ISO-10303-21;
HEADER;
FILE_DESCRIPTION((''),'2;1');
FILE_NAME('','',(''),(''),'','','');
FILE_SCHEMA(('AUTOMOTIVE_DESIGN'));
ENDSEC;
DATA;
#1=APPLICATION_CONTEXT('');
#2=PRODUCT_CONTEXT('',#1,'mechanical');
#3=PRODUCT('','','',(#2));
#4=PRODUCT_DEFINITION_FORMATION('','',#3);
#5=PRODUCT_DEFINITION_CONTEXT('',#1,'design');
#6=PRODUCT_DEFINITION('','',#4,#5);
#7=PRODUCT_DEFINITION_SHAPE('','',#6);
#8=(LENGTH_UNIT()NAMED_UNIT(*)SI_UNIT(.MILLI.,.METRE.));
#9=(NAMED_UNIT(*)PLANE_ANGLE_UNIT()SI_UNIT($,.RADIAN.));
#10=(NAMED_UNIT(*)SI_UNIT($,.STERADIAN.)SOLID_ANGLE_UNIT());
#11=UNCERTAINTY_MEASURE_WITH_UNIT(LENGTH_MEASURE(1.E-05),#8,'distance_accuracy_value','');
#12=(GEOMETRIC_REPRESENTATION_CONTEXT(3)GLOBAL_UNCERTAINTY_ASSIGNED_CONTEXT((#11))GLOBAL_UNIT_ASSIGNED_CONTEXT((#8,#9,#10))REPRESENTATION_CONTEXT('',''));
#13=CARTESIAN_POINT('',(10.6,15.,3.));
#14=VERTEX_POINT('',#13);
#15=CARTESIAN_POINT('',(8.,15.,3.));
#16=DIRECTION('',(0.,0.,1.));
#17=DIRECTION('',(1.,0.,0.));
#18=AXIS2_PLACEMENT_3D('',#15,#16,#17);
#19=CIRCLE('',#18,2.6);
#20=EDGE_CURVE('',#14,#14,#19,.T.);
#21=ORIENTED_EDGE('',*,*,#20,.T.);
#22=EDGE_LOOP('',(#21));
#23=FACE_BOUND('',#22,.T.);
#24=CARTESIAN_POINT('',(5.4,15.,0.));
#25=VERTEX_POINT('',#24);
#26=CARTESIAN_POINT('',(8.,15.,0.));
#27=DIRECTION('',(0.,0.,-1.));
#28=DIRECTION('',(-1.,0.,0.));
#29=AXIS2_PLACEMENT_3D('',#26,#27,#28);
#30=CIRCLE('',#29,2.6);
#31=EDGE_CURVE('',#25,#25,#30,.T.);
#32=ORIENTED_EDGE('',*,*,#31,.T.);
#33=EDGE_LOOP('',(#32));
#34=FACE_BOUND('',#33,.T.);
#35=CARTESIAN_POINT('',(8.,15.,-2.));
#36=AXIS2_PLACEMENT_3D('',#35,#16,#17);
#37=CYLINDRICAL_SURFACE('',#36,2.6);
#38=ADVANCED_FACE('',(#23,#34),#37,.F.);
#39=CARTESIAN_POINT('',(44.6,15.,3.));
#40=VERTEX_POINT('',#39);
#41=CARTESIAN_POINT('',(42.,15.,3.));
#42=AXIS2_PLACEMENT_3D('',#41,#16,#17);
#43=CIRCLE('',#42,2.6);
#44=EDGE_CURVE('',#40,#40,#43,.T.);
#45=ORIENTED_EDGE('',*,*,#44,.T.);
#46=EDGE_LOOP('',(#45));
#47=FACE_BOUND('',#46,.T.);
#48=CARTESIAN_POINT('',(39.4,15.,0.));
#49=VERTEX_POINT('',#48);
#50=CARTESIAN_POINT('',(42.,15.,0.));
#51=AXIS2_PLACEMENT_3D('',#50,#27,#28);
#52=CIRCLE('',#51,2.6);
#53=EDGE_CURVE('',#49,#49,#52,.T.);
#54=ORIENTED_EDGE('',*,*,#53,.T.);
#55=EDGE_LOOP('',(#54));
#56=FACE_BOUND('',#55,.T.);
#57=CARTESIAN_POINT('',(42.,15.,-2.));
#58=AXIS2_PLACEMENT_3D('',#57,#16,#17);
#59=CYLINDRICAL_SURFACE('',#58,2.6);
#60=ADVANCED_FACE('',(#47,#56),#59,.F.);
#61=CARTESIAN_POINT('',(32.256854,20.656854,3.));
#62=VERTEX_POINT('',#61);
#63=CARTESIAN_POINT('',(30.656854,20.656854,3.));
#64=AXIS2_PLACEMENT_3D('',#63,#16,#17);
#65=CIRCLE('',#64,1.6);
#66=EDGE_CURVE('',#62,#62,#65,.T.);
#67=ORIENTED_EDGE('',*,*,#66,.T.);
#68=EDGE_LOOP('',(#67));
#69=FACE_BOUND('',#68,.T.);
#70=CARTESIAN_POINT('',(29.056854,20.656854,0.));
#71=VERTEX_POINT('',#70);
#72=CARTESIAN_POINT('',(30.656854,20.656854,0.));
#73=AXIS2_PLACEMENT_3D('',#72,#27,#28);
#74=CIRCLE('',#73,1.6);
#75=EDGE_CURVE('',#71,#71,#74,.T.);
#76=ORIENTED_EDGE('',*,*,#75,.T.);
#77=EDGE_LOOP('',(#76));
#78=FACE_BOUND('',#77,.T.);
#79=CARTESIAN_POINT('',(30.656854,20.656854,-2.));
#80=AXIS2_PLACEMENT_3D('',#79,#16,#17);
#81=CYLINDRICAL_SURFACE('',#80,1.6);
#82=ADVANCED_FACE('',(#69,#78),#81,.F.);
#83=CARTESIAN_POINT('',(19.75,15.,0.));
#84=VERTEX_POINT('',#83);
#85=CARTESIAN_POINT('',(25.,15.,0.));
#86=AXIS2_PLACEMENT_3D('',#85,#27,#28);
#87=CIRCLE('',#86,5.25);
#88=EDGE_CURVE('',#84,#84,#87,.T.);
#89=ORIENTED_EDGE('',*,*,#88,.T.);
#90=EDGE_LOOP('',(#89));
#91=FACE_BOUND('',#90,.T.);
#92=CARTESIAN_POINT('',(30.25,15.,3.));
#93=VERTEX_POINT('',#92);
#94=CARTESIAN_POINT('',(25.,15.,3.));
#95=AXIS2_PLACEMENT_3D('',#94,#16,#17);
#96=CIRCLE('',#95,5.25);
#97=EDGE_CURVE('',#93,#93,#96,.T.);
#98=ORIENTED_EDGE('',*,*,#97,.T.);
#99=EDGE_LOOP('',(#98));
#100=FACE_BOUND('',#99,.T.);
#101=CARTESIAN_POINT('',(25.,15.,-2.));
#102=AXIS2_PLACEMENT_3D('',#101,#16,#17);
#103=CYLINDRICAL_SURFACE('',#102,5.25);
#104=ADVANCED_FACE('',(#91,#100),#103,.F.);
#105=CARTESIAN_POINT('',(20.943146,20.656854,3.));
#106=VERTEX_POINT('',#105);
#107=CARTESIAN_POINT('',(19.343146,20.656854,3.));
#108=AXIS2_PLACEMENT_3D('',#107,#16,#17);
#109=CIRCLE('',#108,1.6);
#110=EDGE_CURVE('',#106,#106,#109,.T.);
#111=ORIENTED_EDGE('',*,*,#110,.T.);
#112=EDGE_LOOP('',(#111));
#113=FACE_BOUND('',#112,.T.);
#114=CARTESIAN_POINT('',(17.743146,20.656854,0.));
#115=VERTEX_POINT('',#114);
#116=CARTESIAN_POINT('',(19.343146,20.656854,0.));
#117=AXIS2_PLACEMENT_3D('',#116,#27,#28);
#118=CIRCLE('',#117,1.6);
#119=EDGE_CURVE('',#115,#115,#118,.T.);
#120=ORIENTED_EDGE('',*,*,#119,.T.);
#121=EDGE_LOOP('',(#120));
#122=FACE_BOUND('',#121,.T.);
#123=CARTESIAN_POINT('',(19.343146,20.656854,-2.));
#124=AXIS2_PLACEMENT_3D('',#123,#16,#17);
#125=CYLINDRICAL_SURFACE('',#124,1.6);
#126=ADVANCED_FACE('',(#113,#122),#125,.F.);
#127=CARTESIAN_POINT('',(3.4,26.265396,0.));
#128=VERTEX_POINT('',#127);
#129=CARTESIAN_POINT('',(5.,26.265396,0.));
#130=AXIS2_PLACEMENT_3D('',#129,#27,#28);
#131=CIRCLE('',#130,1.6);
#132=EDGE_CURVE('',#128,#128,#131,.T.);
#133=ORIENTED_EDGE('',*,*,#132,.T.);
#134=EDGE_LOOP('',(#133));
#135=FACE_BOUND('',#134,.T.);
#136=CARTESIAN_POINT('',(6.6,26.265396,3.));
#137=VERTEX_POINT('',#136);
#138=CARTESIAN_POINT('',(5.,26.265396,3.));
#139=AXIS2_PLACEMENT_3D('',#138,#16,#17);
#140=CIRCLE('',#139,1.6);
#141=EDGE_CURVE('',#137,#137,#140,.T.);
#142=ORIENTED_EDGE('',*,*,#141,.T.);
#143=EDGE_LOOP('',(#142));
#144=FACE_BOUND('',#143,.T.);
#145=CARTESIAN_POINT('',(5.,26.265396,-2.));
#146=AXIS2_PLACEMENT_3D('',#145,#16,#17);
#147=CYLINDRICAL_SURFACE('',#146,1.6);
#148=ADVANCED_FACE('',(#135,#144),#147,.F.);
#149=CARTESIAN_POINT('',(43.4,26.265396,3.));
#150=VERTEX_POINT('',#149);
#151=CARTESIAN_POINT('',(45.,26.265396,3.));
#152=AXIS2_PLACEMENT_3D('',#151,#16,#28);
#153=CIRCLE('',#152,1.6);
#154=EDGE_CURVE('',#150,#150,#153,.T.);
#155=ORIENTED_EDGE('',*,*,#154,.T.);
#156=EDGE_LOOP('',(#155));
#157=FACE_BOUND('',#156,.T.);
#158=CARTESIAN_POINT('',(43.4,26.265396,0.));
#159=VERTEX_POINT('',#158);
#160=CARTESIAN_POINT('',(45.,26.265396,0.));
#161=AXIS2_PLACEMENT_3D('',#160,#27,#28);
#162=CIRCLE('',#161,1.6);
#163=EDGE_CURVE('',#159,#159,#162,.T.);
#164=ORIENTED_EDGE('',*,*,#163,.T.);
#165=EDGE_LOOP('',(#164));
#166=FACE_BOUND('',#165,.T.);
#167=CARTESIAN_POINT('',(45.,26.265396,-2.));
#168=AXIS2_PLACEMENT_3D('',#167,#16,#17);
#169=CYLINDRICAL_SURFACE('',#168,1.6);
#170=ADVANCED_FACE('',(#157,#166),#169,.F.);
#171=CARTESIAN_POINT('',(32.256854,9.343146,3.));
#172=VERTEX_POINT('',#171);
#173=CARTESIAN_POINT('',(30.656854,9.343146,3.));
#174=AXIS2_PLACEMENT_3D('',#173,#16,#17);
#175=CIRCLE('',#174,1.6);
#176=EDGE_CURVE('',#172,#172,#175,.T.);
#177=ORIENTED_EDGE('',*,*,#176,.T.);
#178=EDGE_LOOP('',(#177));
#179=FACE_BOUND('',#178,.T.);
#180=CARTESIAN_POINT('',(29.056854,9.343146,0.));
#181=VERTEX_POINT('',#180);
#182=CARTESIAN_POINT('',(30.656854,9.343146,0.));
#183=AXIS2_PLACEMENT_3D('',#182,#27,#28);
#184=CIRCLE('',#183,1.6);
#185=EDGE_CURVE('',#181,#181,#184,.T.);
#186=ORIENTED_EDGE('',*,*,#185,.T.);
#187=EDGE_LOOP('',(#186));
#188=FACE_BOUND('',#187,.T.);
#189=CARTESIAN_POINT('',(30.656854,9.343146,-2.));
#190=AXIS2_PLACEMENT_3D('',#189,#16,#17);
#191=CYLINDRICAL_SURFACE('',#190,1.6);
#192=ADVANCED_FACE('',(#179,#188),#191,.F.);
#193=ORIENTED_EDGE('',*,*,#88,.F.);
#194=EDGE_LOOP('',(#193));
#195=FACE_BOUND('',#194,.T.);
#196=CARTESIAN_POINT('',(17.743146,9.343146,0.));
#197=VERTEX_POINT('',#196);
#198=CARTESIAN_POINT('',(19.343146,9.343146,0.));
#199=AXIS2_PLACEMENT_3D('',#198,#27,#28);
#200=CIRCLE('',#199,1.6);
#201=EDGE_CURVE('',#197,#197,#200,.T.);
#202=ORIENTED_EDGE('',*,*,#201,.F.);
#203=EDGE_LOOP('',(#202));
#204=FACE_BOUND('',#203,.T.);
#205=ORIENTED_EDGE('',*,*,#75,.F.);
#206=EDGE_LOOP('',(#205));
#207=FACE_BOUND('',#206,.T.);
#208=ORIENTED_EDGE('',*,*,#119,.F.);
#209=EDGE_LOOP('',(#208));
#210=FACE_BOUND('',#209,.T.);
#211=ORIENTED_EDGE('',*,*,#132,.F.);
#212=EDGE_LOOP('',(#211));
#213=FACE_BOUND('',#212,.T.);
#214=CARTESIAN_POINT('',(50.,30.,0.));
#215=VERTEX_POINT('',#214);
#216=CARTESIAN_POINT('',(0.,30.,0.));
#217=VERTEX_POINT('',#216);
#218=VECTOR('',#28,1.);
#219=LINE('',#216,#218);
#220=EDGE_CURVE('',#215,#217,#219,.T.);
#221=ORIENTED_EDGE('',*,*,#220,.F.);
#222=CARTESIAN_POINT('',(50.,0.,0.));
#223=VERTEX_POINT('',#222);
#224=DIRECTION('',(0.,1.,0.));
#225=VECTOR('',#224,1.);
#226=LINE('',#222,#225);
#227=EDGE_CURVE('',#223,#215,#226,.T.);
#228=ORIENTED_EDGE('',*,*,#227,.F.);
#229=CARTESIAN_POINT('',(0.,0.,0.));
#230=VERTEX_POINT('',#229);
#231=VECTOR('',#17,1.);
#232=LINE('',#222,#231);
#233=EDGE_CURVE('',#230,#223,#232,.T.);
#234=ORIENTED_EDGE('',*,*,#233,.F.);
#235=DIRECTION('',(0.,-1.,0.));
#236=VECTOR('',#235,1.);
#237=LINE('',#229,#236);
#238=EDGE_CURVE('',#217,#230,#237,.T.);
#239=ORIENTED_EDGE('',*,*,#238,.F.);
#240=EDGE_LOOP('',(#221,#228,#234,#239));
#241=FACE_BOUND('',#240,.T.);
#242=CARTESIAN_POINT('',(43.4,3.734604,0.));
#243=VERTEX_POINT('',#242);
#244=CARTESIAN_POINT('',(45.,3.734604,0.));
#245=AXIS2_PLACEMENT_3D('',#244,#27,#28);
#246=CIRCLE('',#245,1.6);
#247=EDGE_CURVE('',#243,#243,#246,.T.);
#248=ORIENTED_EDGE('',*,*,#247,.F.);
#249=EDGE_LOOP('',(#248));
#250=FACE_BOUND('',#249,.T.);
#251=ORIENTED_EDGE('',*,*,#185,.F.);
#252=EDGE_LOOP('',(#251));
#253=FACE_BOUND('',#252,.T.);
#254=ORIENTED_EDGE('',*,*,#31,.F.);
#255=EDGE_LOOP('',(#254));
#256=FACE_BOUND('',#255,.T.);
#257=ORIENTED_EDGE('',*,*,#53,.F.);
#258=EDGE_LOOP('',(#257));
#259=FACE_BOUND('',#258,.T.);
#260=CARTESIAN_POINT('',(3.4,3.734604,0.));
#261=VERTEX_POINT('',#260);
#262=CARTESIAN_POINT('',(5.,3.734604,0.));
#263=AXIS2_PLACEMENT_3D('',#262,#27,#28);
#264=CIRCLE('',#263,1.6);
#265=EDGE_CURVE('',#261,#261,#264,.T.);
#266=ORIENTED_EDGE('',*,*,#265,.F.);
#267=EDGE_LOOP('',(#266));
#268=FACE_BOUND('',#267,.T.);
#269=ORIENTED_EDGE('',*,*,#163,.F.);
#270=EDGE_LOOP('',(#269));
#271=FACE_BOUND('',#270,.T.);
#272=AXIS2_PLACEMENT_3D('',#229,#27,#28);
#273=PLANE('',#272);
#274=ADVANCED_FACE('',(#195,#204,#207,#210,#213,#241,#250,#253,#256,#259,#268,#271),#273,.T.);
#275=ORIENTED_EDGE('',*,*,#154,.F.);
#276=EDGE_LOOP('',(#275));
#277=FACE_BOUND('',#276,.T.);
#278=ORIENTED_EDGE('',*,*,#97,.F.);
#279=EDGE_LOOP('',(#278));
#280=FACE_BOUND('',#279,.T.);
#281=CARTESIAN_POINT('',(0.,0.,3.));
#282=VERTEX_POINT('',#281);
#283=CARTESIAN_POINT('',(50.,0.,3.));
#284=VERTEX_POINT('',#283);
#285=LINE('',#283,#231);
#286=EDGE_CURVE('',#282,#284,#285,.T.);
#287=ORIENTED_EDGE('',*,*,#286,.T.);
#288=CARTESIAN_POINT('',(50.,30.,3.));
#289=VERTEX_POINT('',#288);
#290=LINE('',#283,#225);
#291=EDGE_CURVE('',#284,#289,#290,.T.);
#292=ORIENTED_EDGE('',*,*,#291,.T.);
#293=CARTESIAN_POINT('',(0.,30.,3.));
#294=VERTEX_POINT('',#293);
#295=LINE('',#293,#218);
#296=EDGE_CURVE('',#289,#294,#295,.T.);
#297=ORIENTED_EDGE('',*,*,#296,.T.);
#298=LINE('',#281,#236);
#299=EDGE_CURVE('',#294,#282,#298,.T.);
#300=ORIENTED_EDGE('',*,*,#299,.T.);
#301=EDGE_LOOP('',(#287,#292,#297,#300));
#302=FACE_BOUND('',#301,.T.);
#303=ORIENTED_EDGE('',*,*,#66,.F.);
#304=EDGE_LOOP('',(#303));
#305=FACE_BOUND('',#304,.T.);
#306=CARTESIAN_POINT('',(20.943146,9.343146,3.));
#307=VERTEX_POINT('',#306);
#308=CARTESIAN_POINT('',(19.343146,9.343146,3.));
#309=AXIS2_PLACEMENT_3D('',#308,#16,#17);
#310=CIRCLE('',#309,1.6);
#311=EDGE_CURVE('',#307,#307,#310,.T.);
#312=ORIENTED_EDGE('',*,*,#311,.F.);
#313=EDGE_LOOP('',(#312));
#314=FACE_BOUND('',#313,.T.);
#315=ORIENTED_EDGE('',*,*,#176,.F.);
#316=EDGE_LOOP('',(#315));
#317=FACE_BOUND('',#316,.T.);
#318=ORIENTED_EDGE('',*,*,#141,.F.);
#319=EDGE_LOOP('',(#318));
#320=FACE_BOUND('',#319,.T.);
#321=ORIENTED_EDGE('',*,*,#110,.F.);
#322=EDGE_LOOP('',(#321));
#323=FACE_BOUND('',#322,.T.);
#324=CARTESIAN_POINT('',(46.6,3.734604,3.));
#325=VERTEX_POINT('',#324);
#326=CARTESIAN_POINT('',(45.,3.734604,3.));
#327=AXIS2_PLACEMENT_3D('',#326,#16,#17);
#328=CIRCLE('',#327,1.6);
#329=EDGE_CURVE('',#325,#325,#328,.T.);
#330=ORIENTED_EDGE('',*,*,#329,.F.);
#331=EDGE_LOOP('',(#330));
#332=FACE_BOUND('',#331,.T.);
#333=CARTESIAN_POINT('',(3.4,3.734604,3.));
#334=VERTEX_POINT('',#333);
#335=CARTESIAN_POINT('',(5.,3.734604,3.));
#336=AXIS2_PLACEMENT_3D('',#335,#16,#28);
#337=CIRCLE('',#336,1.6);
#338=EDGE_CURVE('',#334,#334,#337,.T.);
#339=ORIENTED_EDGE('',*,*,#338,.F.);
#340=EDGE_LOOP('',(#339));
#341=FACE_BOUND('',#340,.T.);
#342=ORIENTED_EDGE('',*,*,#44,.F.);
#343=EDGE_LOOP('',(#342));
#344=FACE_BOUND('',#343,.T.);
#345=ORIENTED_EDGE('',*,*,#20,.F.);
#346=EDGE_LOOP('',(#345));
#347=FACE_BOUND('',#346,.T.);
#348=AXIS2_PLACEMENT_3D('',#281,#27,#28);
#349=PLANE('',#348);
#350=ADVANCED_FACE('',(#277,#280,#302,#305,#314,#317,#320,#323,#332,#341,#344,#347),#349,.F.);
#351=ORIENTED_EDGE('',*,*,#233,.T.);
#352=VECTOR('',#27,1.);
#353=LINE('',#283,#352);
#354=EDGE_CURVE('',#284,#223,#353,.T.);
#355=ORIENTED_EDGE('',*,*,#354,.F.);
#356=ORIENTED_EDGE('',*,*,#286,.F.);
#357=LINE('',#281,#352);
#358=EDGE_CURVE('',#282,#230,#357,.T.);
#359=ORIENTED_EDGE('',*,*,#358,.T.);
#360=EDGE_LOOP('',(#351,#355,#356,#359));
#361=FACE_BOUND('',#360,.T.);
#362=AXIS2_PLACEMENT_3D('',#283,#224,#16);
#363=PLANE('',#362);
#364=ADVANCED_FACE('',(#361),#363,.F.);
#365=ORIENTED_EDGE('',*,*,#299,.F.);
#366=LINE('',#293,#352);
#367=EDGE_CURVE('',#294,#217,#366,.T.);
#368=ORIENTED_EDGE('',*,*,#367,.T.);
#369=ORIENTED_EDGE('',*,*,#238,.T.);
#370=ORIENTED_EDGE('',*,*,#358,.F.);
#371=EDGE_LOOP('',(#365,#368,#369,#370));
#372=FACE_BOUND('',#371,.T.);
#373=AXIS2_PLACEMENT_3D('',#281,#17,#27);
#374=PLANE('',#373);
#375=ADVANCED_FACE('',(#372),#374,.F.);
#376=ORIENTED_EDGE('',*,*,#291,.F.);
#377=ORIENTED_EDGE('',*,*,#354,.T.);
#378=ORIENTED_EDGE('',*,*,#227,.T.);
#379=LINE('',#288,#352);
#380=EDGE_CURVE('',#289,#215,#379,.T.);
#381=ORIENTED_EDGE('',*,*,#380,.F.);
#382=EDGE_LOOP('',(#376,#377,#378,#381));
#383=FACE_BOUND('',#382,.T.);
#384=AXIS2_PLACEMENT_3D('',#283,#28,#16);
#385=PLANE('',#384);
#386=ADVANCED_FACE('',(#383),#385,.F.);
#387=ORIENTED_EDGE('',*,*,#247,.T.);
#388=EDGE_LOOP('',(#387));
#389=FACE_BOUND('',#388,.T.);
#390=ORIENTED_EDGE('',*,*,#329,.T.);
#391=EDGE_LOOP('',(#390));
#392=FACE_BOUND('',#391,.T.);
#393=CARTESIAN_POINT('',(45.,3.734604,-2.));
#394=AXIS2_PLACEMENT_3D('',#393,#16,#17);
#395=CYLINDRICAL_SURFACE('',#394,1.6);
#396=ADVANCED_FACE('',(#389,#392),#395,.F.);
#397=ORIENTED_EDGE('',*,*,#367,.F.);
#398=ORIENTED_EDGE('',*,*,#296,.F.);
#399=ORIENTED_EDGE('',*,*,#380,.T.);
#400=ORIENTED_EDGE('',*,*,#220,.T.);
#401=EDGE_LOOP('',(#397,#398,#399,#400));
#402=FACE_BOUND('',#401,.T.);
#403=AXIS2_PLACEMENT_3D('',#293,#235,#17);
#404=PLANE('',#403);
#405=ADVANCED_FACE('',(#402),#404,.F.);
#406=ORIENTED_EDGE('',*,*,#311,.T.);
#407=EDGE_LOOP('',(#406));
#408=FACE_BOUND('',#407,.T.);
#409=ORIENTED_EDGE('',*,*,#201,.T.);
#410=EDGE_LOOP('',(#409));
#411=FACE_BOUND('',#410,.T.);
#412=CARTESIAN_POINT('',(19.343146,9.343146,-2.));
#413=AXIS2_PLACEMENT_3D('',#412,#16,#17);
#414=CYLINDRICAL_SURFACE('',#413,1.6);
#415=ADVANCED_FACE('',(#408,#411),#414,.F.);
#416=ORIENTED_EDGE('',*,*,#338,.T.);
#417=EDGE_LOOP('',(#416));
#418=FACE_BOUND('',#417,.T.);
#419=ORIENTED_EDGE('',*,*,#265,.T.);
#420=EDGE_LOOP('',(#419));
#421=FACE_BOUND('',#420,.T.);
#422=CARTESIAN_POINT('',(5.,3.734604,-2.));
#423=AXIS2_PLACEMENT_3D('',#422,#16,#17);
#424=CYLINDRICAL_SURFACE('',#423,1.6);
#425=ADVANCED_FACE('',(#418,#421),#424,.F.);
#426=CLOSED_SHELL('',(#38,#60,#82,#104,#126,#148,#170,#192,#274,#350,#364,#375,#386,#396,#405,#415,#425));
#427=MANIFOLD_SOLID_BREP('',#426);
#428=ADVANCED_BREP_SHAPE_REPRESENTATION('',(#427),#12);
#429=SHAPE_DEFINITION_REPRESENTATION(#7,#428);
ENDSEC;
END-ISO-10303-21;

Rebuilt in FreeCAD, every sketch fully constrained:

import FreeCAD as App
import Part
import Sketcher

V = App.Vector

doc = App.newDocument("Part")
body = doc.addObject("PartDesign::Body", "Body")

# Sketch on XY plane
sketch1 = body.newObject("Sketcher::SketchObject", "Sketch")
sketch1.AttachmentSupport = (doc.getObject("XY_Plane"), [""])
sketch1.MapMode = "FlatFace"
sketch1.addGeometry([
    Part.LineSegment(V(0, 30, 0), V(0, 0, 0)),
    Part.LineSegment(V(0, 0, 0), V(50, 0, 0)),
    Part.LineSegment(V(50, 0, 0), V(50, 30, 0)),
    Part.LineSegment(V(50, 30, 0), V(0, 30, 0)),
], False)
sketch1.addConstraint([
    Sketcher.Constraint("Coincident", 0, 2, 1, 1),
    Sketcher.Constraint("Coincident", 1, 2, 2, 1),
    Sketcher.Constraint("Coincident", 2, 2, 3, 1),
    Sketcher.Constraint("Coincident", 3, 2, 0, 1),
    Sketcher.Constraint("Vertical", 0),
    Sketcher.Constraint("Horizontal", 1),
    Sketcher.Constraint("Vertical", 2),
    Sketcher.Constraint("Horizontal", 3),
    Sketcher.Constraint("Coincident", 0, 2, -1, 1),
    Sketcher.Constraint("DistanceX", 1, 1, 1, 2, 50.0),
    Sketcher.Constraint("DistanceY", 0, 2, 0, 1, 30.0),
])
pad1 = body.newObject("PartDesign::Pad", "Pad")
pad1.Profile = sketch1
pad1.Length = 3

# Sketch on XY plane
sketch2 = body.newObject("Sketcher::SketchObject", "Sketch001")
sketch2.AttachmentSupport = (doc.getObject("XY_Plane"), [""])
sketch2.MapMode = "FlatFace"
sketch2.AttachmentOffset = App.Placement(V(0, 0, 3), App.Rotation())
sketch2.addGeometry([
    Part.Circle(V(8, 15, 0), V(0, 0, 1), 2.6),  # 0
    Part.Circle(V(42, 15, 0), V(0, 0, 1), 2.6),  # 1
    Part.Circle(V(30.7, 20.7, 0), V(0, 0, 1), 1.6),  # 2
    Part.Circle(V(30.7, 9.3, 0), V(0, 0, 1), 1.6),  # 3
    Part.Circle(V(19.3, 9.3, 0), V(0, 0, 1), 1.6),  # 4
    Part.Circle(V(19.3, 20.7, 0), V(0, 0, 1), 1.6),  # 5
    Part.Circle(V(25, 15, 0), V(0, 0, 1), 5.2),  # 6
    Part.Circle(V(45, 3.7, 0), V(0, 0, 1), 1.6),  # 7
    Part.Circle(V(45, 26.3, 0), V(0, 0, 1), 1.6),  # 8
    Part.Circle(V(5, 26.3, 0), V(0, 0, 1), 1.6),  # 9
    Part.Circle(V(5, 3.7, 0), V(0, 0, 1), 1.6),  # 10
], False)
sketch2.addConstraint([
    Sketcher.Constraint("Equal", 0, 1),
    Sketcher.Constraint("Equal", 2, 3),
    Sketcher.Constraint("Equal", 3, 4),
    Sketcher.Constraint("Equal", 4, 5),
    Sketcher.Constraint("Equal", 5, 7),
    Sketcher.Constraint("Equal", 7, 8),
    Sketcher.Constraint("Equal", 8, 9),
    Sketcher.Constraint("Equal", 9, 10),
    Sketcher.Constraint("Horizontal", 0, 3, 1, 3),
    Sketcher.Constraint("Horizontal", 3, 3, 4, 3),
    Sketcher.Constraint("Horizontal", 2, 3, 5, 3),
    Sketcher.Constraint("Horizontal", 1, 3, 6, 3),
    Sketcher.Constraint("Horizontal", 8, 3, 9, 3),
    Sketcher.Constraint("Horizontal", 7, 3, 10, 3),
    Sketcher.Constraint("Vertical", 2, 3, 3, 3),
    Sketcher.Constraint("Vertical", 4, 3, 5, 3),
    Sketcher.Constraint("Vertical", 7, 3, 8, 3),
    Sketcher.Constraint("Vertical", 9, 3, 10, 3),
    Sketcher.Constraint("Diameter", 0, 5.2),
    Sketcher.Constraint("Diameter", 2, 3.2),
    Sketcher.Constraint("Diameter", 6, 10.5),
    Sketcher.Constraint("DistanceX", -1, 1, 0, 3, 8.0),
    Sketcher.Constraint("DistanceY", -1, 1, 0, 3, 15.0),
    Sketcher.Constraint("DistanceX", -1, 1, 1, 3, 42.0),
    Sketcher.Constraint("DistanceX", -1, 1, 6, 3, 25.0),
    Sketcher.Constraint("DistanceX", -1, 1, 7, 3, 45.0),
    Sketcher.Constraint("DistanceX", -1, 1, 9, 3, 5.0),
    Sketcher.Constraint("DistanceY", 3, 3, 2, 3, 11.313708),
    Sketcher.Constraint("DistanceX", 4, 3, 3, 3, 11.313708),
    Sketcher.Constraint("DistanceY", 7, 3, 2, 3, 16.922251),
    Sketcher.Constraint("DistanceY", 3, 3, 8, 3, 16.922251),
    Sketcher.Constraint("DistanceX", -1, 1, 2, 3, 30.656854),
    Sketcher.Constraint("DistanceY", -1, 1, 2, 3, 20.656854),
])
pocket1 = body.newObject("PartDesign::Pocket", "Pocket")
pocket1.Profile = sketch2
pocket1.Length = 5

doc.recompute()
